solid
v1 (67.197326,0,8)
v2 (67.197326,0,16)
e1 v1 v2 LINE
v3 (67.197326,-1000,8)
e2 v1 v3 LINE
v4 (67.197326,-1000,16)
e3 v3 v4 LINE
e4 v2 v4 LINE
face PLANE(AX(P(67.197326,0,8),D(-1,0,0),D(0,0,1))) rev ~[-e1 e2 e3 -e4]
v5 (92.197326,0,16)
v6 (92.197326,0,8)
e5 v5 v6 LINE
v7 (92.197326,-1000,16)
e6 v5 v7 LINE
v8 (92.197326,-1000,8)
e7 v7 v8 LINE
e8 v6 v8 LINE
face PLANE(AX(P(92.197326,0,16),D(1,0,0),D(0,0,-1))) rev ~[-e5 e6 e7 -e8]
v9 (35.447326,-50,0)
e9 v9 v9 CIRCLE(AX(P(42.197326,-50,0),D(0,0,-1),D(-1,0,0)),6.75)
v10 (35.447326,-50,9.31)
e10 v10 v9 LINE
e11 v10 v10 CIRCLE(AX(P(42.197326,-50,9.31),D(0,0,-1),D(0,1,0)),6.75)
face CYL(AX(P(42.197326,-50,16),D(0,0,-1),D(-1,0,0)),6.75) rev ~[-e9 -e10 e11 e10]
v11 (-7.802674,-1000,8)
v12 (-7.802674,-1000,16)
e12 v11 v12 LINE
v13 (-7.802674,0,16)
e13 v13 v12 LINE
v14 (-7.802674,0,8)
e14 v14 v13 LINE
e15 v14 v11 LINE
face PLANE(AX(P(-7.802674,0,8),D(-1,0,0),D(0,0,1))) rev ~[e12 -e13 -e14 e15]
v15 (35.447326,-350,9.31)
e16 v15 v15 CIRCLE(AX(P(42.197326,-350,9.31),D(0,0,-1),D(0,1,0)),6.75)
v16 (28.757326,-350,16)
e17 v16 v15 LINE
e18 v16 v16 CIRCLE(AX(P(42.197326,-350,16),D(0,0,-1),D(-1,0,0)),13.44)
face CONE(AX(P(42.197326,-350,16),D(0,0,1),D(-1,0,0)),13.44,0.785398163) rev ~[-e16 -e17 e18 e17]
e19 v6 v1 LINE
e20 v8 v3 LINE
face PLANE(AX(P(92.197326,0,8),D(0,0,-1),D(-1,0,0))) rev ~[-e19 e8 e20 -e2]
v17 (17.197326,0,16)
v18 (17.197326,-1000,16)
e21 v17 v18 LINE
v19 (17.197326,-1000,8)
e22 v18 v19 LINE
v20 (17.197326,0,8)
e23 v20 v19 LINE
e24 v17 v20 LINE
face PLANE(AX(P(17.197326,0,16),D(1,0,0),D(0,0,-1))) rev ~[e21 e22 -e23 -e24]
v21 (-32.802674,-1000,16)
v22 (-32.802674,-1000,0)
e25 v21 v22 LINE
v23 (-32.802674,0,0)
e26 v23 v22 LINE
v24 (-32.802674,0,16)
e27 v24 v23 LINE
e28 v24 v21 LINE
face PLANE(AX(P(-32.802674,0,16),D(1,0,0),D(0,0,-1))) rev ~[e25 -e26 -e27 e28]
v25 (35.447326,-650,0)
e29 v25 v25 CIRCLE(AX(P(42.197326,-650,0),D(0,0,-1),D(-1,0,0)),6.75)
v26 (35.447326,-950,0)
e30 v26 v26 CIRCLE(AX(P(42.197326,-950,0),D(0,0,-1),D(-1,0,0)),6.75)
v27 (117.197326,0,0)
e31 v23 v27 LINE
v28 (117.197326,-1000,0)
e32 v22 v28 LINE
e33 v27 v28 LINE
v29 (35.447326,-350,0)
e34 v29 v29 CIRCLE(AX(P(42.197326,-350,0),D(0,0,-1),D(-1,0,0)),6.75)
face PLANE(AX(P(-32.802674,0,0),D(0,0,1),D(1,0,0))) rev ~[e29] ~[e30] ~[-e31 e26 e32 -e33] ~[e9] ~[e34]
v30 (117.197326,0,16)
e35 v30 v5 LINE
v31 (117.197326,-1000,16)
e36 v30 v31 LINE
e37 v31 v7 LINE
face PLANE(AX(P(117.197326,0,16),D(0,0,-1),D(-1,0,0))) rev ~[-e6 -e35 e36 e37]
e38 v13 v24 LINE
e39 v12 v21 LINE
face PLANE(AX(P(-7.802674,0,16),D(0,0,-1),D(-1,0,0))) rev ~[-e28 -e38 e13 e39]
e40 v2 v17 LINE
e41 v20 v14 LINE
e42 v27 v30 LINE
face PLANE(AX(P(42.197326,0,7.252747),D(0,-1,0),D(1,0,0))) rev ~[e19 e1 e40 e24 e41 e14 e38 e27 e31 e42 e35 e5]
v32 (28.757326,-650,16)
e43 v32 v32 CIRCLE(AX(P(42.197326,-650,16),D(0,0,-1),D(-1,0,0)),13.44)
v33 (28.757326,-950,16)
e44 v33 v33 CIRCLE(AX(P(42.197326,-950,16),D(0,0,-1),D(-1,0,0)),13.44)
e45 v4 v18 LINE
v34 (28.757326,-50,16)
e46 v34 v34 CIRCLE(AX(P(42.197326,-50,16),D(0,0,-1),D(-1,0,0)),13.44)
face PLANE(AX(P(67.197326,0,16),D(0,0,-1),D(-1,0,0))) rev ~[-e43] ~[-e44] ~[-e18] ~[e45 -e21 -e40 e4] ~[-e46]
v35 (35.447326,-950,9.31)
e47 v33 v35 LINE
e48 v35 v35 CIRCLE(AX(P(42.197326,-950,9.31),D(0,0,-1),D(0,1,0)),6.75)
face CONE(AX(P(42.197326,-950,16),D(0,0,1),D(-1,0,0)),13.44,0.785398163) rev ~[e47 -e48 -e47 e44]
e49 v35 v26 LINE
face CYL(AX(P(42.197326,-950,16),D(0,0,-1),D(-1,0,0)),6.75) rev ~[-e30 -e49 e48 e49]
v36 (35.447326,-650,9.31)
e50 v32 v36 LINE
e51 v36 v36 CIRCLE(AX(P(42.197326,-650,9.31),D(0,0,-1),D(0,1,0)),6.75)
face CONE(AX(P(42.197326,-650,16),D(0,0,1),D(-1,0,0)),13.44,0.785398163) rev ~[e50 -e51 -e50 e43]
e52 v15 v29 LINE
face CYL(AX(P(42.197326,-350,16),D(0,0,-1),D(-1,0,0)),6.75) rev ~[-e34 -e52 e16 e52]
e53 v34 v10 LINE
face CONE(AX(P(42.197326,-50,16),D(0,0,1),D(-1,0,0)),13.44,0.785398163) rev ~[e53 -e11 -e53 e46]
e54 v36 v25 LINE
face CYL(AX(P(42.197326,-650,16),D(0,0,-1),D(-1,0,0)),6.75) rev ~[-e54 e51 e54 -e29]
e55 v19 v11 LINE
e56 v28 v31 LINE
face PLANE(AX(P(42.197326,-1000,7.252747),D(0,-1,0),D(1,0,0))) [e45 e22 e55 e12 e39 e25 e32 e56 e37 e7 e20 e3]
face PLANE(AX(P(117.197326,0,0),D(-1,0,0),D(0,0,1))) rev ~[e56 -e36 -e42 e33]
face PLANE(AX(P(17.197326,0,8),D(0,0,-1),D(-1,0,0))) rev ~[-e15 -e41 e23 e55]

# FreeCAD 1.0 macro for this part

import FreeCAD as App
import Part
import Sketcher


def add_polygon(sketch, points):
    """Adds a closed chain of lines whose ends are joined by coincident constraints."""
    first, n = sketch.GeometryCount, len(points)
    for a, b in zip(points, points[1:] + points[:1]):
        sketch.addGeometry(Part.LineSegment(App.Vector(*a, 0), App.Vector(*b, 0)), False)
    for i in range(n):
        sketch.addConstraint(Sketcher.Constraint("Coincident", first + i, 2, first + (i + 1) % n, 1))

doc = App.newDocument("Part")
params = doc.addObject("Spreadsheet::Sheet", "Params")
for row, (alias, value) in enumerate([
    ("sketch1_width", "150 mm"),
    ("sketch1_width2", "25 mm"),
    ("sketch1_height", "16 mm"),
    ("sketch1_height2", "8 mm"),
    ("pad1_length", "1000 mm"),
    ("sketch2_diameter", "13.5 mm"),
    ("hole_diameter", "13.5 mm"),
    ("hole_depth", "16 mm"),
    ("hole_csink_diameter", "26.88 mm"),
], start=1):
    params.set(f"A{row}", alias)
    params.set(f"B{row}", "=" + value)
    params.setAlias(f"B{row}", alias)

body = doc.addObject("PartDesign::Body", "Body")

# Sketch on XZ plane
sketch1 = body.newObject("Sketcher::SketchObject", "Sketch")
sketch1.AttachmentSupport = (doc.getObject("XZ_Plane"), [""])
sketch1.MapMode = "FlatFace"
add_polygon(sketch1, [(-32.802674, 16), (-32.802674, 0), (117.197326, 0), (117.197326, 16), (92.197326, 16), (92.197326, 8), (67.197326, 8), (67.197326, 16), (17.197326, 16), (17.197326, 8), (-7.802674, 8), (-7.802674, 16)])  # lines 0-11
sketch1.addConstraint(Sketcher.Constraint("Vertical", 0))
sketch1.addConstraint(Sketcher.Constraint("Horizontal", 1))
sketch1.addConstraint(Sketcher.Constraint("Vertical", 2))
sketch1.addConstraint(Sketcher.Constraint("Horizontal", 3))
sketch1.addConstraint(Sketcher.Constraint("Vertical", 4))
sketch1.addConstraint(Sketcher.Constraint("Horizontal", 5))
sketch1.addConstraint(Sketcher.Constraint("Vertical", 6))
sketch1.addConstraint(Sketcher.Constraint("Horizontal", 7))
sketch1.addConstraint(Sketcher.Constraint("Vertical", 8))
sketch1.addConstraint(Sketcher.Constraint("Horizontal", 9))
sketch1.addConstraint(Sketcher.Constraint("Vertical", 10))
sketch1.addConstraint(Sketcher.Constraint("Horizontal", 11))
sketch1.addConstraint(Sketcher.Constraint("PointOnObject", 0, 2, -1))
sketch1.addConstraint(Sketcher.Constraint("Horizontal", 3, 2, 6, 2))
sketch1.addConstraint(Sketcher.Constraint("Horizontal", 5, 2, 8, 2))
sketch1.addConstraint(Sketcher.Constraint("Horizontal", 7, 2, 10, 2))
sketch1.addConstraint(Sketcher.Constraint("Equal", 3, 5))
sketch1.addConstraint(Sketcher.Constraint("Equal", 5, 9))
sketch1.addConstraint(Sketcher.Constraint("Equal", 9, 11))
sketch1.addConstraint(Sketcher.Constraint("DistanceX", 1, 1, 1, 2, 150.0))
sketch1.addConstraint(Sketcher.Constraint("DistanceX", 3, 2, 3, 1, 25.0))
sketch1.addConstraint(Sketcher.Constraint("DistanceY", 0, 2, 0, 1, 16.0))
sketch1.addConstraint(Sketcher.Constraint("DistanceY", 4, 2, 4, 1, 8.0))
sketch1.addConstraint(Sketcher.Constraint("DistanceX", 0, 2, -1, 1, 32.802674))
sketch1.setExpression("Constraints[31]", "Params.sketch1_width")
sketch1.setExpression("Constraints[32]", "Params.sketch1_width2")
sketch1.setExpression("Constraints[33]", "Params.sketch1_height")
sketch1.setExpression("Constraints[34]", "Params.sketch1_height2")
pad1 = body.newObject("PartDesign::Pad", "Pad")
pad1.Profile = sketch1
pad1.setExpression("Length", "Params.pad1_length")

# Sketch on XY plane
sketch2 = body.newObject("Sketcher::SketchObject", "Sketch001")
sketch2.AttachmentSupport = (doc.getObject("XY_Plane"), [""])
sketch2.MapMode = "FlatFace"
sketch2.AttachmentOffset = App.Placement(App.Vector(0, 0, 16), App.Rotation())
sketch2.addGeometry(Part.Circle(App.Vector(42.197326, -50, 0), App.Vector(0, 0, 1), 6.75), False)
sketch2.addGeometry(Part.Circle(App.Vector(42.197326, -350, 0), App.Vector(0, 0, 1), 6.75), False)
sketch2.addGeometry(Part.Circle(App.Vector(42.197326, -650, 0), App.Vector(0, 0, 1), 6.75), False)
sketch2.addGeometry(Part.Circle(App.Vector(42.197326, -950, 0), App.Vector(0, 0, 1), 6.75), False)
sketch2.addConstraint(Sketcher.Constraint("Equal", 0, 1))
sketch2.addConstraint(Sketcher.Constraint("Equal", 1, 2))
sketch2.addConstraint(Sketcher.Constraint("Equal", 2, 3))
sketch2.addConstraint(Sketcher.Constraint("Vertical", 0, 3, 1, 3))
sketch2.addConstraint(Sketcher.Constraint("Vertical", 1, 3, 2, 3))
sketch2.addConstraint(Sketcher.Constraint("Vertical", 2, 3, 3, 3))
sketch2.addConstraint(Sketcher.Constraint("Diameter", 0, 13.5))
sketch2.addConstraint(Sketcher.Constraint("DistanceY", 0, 3, -1, 1, 50.0))
sketch2.addConstraint(Sketcher.Constraint("DistanceY", 1, 3, -1, 1, 350.0))
sketch2.addConstraint(Sketcher.Constraint("DistanceY", 2, 3, -1, 1, 650.0))
sketch2.addConstraint(Sketcher.Constraint("DistanceY", 3, 3, -1, 1, 950.0))
sketch2.addConstraint(Sketcher.Constraint("DistanceX", -1, 1, 0, 3, 42.197326))
sketch2.setExpression("Constraints[6]", "Params.sketch2_diameter")
doc.recompute()
hole = body.newObject("PartDesign::Hole", "Hole")
hole.Profile = sketch2
hole.ThreadType = "None"
hole.setExpression("Diameter", "Params.hole_diameter")
hole.DepthType = "Dimension"
hole.setExpression("Depth", "Params.hole_depth")
hole.DrillPoint = "Angled"
hole.DrillPointAngle = 118
hole.HoleCutType = "Countersink"
hole.setExpression("HoleCutDiameter", "Params.hole_csink_diameter")
hole.HoleCutCountersinkAngle = 90

doc.recompute()
